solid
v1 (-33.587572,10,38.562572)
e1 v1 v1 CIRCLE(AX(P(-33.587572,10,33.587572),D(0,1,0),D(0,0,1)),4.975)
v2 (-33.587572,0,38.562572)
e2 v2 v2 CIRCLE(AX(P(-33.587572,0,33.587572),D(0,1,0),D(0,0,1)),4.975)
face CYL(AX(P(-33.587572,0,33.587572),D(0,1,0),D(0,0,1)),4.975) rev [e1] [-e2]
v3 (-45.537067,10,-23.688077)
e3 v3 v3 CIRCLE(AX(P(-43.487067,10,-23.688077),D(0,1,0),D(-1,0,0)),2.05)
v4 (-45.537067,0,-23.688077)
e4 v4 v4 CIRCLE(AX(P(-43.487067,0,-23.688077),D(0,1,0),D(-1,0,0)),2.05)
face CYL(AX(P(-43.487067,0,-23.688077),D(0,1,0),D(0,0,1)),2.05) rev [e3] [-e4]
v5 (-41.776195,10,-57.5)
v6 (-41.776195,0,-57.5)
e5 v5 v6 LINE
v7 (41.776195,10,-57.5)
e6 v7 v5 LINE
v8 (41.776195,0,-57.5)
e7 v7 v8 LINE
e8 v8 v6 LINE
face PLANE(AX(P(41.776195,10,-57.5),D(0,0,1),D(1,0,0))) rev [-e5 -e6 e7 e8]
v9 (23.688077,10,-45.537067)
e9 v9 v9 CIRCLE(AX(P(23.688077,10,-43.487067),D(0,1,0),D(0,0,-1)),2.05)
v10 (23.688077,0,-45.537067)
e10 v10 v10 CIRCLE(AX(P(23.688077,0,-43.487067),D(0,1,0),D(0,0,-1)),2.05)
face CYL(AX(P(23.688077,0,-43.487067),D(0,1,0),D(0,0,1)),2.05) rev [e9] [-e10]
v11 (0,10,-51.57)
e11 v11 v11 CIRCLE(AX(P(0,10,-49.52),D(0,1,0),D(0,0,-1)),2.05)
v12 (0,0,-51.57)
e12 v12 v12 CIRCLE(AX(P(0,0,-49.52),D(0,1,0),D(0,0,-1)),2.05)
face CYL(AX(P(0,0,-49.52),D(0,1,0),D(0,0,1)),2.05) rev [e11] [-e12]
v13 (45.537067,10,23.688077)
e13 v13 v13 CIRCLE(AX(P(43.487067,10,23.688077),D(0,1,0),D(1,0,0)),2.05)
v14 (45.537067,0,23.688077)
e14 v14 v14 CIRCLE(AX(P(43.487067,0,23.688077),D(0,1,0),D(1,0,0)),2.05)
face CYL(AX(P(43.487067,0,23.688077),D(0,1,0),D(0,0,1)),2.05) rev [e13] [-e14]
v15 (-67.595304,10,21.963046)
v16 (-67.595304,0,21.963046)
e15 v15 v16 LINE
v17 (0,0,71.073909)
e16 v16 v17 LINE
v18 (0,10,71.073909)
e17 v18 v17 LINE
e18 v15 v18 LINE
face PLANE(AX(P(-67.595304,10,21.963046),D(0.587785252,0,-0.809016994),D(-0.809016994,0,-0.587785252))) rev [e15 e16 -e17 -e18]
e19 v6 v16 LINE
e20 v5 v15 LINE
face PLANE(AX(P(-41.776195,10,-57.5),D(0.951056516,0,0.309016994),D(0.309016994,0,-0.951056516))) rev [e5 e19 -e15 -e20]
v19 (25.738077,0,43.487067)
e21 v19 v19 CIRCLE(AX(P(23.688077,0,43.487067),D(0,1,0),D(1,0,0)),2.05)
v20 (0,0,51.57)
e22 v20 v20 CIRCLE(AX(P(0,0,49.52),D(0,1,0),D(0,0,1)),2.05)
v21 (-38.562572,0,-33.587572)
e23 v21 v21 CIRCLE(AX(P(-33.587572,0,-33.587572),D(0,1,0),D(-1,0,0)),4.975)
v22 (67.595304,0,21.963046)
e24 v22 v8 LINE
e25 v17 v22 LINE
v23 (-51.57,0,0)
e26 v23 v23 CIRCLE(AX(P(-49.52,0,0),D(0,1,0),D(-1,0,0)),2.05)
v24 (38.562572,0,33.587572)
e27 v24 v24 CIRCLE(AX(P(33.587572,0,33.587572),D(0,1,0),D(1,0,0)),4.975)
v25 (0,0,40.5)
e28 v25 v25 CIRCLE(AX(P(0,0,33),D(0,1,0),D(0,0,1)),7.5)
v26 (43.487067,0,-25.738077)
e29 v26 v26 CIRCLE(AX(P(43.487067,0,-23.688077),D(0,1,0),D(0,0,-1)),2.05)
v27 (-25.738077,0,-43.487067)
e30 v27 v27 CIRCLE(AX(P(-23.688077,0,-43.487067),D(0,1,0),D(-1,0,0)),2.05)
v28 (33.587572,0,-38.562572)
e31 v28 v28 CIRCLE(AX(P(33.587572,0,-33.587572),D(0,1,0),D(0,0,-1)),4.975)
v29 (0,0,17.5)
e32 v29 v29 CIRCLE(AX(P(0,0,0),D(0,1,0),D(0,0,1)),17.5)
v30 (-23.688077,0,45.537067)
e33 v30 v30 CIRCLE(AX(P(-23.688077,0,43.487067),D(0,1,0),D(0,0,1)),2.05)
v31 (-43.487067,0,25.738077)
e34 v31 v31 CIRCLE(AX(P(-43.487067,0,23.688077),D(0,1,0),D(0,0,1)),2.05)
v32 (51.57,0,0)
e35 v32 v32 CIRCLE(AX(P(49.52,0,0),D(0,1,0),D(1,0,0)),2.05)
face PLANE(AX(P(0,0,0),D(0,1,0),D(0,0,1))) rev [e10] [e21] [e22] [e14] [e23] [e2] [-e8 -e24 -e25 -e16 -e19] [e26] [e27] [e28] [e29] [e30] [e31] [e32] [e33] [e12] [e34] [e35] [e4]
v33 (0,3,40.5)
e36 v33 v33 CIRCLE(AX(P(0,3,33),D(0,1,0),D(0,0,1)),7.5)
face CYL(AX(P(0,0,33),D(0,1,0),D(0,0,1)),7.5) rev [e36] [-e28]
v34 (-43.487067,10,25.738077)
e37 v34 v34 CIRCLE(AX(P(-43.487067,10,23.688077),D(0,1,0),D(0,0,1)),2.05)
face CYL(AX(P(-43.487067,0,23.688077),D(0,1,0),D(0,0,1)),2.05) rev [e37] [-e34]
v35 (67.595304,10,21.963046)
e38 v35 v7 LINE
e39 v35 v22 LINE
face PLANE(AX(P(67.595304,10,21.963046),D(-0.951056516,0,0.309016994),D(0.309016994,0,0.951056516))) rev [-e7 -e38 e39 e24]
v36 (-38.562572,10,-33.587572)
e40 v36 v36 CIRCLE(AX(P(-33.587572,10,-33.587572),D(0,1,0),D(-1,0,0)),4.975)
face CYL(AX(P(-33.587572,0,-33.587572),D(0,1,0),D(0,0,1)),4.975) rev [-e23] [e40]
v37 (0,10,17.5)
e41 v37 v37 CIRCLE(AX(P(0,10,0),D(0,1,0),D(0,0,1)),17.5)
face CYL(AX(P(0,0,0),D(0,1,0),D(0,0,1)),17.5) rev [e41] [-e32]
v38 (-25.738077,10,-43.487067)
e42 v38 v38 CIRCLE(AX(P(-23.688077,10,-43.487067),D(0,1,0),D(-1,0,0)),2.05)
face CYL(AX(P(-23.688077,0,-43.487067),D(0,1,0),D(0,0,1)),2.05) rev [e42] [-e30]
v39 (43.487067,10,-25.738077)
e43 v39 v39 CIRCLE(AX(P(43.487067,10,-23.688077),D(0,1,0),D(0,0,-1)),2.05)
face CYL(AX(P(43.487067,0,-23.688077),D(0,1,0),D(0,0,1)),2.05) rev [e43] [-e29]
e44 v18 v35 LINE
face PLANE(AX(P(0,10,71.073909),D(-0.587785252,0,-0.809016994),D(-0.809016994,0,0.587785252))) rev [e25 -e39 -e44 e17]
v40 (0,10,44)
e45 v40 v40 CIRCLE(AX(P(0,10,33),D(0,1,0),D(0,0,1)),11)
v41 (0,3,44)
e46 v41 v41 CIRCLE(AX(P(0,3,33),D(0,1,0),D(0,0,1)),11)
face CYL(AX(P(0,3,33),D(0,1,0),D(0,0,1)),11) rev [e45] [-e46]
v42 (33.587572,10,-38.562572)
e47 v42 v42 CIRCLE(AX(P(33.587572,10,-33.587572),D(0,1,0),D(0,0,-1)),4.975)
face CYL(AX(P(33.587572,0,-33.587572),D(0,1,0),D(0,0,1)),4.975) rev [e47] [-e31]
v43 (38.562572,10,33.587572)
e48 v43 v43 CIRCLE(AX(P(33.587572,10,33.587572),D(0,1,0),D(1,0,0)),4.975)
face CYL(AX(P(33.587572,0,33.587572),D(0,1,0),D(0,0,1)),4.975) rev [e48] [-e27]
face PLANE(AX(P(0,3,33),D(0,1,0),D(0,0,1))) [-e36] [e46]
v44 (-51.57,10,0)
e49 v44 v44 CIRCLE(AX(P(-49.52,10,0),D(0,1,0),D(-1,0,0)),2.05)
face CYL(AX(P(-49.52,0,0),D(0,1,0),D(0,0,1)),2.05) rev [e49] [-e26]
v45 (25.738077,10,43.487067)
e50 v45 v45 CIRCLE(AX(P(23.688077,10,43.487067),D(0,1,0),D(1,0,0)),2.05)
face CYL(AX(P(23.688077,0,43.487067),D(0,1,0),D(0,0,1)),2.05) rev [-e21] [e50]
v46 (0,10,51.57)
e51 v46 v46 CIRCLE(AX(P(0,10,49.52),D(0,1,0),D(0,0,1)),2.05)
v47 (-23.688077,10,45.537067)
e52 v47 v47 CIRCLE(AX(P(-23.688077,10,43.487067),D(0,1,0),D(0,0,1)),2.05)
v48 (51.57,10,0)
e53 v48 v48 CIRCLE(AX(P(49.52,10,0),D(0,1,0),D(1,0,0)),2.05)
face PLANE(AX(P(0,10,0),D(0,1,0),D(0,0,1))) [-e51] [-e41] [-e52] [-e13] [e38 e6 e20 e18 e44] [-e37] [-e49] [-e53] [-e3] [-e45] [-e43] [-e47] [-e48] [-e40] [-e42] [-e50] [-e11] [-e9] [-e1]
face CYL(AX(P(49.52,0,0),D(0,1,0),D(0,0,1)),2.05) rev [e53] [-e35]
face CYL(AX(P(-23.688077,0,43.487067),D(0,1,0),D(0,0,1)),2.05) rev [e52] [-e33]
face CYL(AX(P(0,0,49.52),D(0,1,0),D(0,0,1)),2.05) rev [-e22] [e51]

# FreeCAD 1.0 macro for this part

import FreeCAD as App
import Part
import Sketcher
from FreeCAD import Vector
Q = App.Units.Quantity


def add_polygon(sketch, points):
    """Adds a closed chain of lines whose ends are joined by coincident constraints."""
    first, n = sketch.GeometryCount, len(points)
    for a, b in zip(points, points[1:] + points[:1]):
        sketch.addGeometry(Part.LineSegment(App.Vector(*a, 0), App.Vector(*b, 0)), False)
    for i in range(n):
        sketch.addConstraint(Sketcher.Constraint("Coincident", first + i, 2, first + (i + 1) % n, 1))

doc = App.newDocument("Part")
body = doc.addObject("PartDesign::Body", "Body")

sketch1 = body.newObject("Sketcher::SketchObject", "Sketch")
sketch1.AttachmentSupport = (doc.getObject("XZ_Plane"), [""])
sketch1.MapMode = "FlatFace"
add_polygon(sketch1, [(0, 71.073909), (67.595304, 21.963046), (41.776195, -57.5), (-41.776195, -57.5), (-67.595304, 21.963046)])
sketch1.addConstraint([
    Sketcher.Constraint("Horizontal", 2),
    Sketcher.Constraint("Symmetric", 0, 2, 3, 2, -2),
    Sketcher.Constraint("PointOnObject", 4, 2, -2),
    Sketcher.Constraint("Equal", 0, 1),
    Sketcher.Constraint("Equal", 1, 3),
    Sketcher.Constraint("Angle", 0, Q("-36 deg")),
    Sketcher.Constraint("Angle", 1, Q("-108 deg")),
    Sketcher.Constraint("DistanceY", 1, 2, -1, 1, 57.5),
    Sketcher.Constraint("DistanceX", 2, 2, 2, 1, 83.552391),
])
pad1 = body.newObject("PartDesign::Pad", "Pad")
pad1.Profile = sketch1
pad1.Length = 10
pad1.Reversed = True

sketch2 = body.newObject("Sketcher::SketchObject", "Sketch001")
sketch2.AttachmentSupport = (doc.getObject("XZ_Plane"), [""])
sketch2.MapMode = "FlatFace"
sketch2.AttachmentOffset = App.Placement(Vector(0, 0, -10), App.Rotation())
sketch2.addGeometry(Part.Circle(Vector(0, 33, 0), Vector(0, 0, 1), 11), False)
sketch2.addConstraint([
    Sketcher.Constraint("PointOnObject", 0, 3, -2),
    Sketcher.Constraint("Diameter", 0, 22.0),
    Sketcher.Constraint("DistanceY", -1, 1, 0, 3, 33.0),
])
pocket1 = body.newObject("PartDesign::Pocket", "Pocket")
pocket1.Profile = sketch2
pocket1.Length = 7
pocket1.Reversed = True

sketch3 = body.newObject("Sketcher::SketchObject", "Sketch002")
sketch3.AttachmentSupport = (doc.getObject("XZ_Plane"), [""])
sketch3.MapMode = "FlatFace"
sketch3.AttachmentOffset = App.Placement(Vector(0, 0, -3), App.Rotation())
sketch3.addGeometry(Part.Circle(Vector(0, 33, 0), Vector(0, 0, 1), 7.5), False)
sketch3.addConstraint([
    Sketcher.Constraint("PointOnObject", 0, 3, -2),
    Sketcher.Constraint("Diameter", 0, 15.0),
    Sketcher.Constraint("DistanceY", -1, 1, 0, 3, 33.0),
])
pocket2 = body.newObject("PartDesign::Pocket", "Pocket001")
pocket2.Profile = sketch3
pocket2.Type = "ThroughAll"
pocket2.Reversed = True

sketch4 = body.newObject("Sketcher::SketchObject", "Sketch003")
sketch4.AttachmentSupport = (doc.getObject("XZ_Plane"), [""])
sketch4.MapMode = "FlatFace"
sketch4.AttachmentOffset = App.Placement(Vector(0, 0, -10), App.Rotation())
sketch4.addGeometry([
    Part.Circle(Vector(-33.587572, 33.587572, 0), Vector(0, 0, 1), 4.975),
    Part.Circle(Vector(-43.487067, 23.688077, 0), Vector(0, 0, 1), 2.05),
    Part.Circle(Vector(-23.688077, 43.487067, 0), Vector(0, 0, 1), 2.05),
], False)
sketch4.addConstraint([
    Sketcher.Constraint("Equal", 1, 2),
    Sketcher.Constraint("Diameter", 1, 4.1),
    Sketcher.Constraint("Diameter", 0, 9.95),
    Sketcher.Constraint("DistanceX", 1, 3, 2, 3, 19.79899),
    Sketcher.Constraint("DistanceY", 1, 3, 2, 3, 19.79899),
    Sketcher.Constraint("DistanceX", 0, 3, -1, 1, 33.587572),
    Sketcher.Constraint("DistanceY", -1, 1, 0, 3, 33.587572),
    Sketcher.Constraint("DistanceX", 1, 3, -1, 1, 43.487067),
    Sketcher.Constraint("DistanceY", -1, 1, 1, 3, 23.688077),
])
pocket3 = body.newObject("PartDesign::Pocket", "Pocket002")
pocket3.Profile = sketch4
pocket3.Type = "ThroughAll"
pocket3.Reversed = True

sketch5 = body.newObject("Sketcher::SketchObject", "Sketch004")
sketch5.AttachmentSupport = (doc.getObject("XZ_Plane"), [""])
sketch5.MapMode = "FlatFace"
sketch5.AttachmentOffset = App.Placement(Vector(0, 0, -10), App.Rotation())
sketch5.addGeometry(Part.Circle(Vector(0, 49.52, 0), Vector(0, 0, 1), 2.05), False)
sketch5.addConstraint([
    Sketcher.Constraint("PointOnObject", 0, 3, -2),
    Sketcher.Constraint("Diameter", 0, 4.1),
    Sketcher.Constraint("DistanceY", -1, 1, 0, 3, 49.52),
])
pocket4 = body.newObject("PartDesign::Pocket", "Pocket003")
pocket4.Profile = sketch5
pocket4.Type = "ThroughAll"
pocket4.Reversed = True
doc.recompute()

polarpattern = body.newObject("PartDesign::PolarPattern", "PolarPattern")
polarpattern.Originals = [pocket3, pocket4]
polarpattern.Axis = (doc.getObject("Y_Axis"), [""])
polarpattern.Angle = 360
polarpattern.Occurrences = 4
body.Tip = polarpattern

sketch6 = body.newObject("Sketcher::SketchObject", "Sketch005")
sketch6.AttachmentSupport = (doc.getObject("XZ_Plane"), [""])
sketch6.MapMode = "FlatFace"
sketch6.AttachmentOffset = App.Placement(Vector(0, 0, -10), App.Rotation())
sketch6.addGeometry(Part.Circle(Vector(0, 0, 0), Vector(0, 0, 1), 17.5), False)
sketch6.addConstraint([
    Sketcher.Constraint("Coincident", 0, 3, -1, 1),
    Sketcher.Constraint("Diameter", 0, 35.0),
])
pocket5 = body.newObject("PartDesign::Pocket", "Pocket004")
pocket5.Profile = sketch6
pocket5.Type = "ThroughAll"
pocket5.Reversed = True

doc.recompute()
